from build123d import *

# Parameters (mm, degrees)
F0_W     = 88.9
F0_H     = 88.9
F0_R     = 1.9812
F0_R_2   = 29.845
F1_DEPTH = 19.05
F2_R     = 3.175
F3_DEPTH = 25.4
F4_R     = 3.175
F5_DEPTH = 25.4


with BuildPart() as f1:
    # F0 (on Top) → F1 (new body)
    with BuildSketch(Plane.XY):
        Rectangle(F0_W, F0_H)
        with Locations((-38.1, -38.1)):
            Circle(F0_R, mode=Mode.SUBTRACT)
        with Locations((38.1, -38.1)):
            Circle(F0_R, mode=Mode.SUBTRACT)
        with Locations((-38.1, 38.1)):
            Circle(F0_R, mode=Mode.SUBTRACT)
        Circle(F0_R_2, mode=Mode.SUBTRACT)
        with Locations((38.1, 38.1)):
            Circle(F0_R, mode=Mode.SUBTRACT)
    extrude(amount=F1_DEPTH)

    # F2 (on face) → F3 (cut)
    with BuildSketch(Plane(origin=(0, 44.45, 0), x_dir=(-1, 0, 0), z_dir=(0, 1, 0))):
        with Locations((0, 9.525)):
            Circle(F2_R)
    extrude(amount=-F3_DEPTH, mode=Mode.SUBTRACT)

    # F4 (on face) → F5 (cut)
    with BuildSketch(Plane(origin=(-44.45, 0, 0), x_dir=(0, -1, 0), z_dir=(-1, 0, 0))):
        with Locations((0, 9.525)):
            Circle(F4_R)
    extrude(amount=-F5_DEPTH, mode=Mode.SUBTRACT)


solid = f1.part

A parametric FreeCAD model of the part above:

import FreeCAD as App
import Part
import Sketcher
Q = App.Units.Quantity

doc = App.newDocument("Part")
params = doc.addObject("Spreadsheet::Sheet", "Params")
for row, (alias, value) in enumerate([
    ("sketch1_diameter", "2.35 in"),
    ("sketch1_diameter2", "0.156 in"),
    ("sketch1_width", "3.5 in"),
    ("pad1_length", "0.75 in"),
    ("sketch2_diameter", "0.25 in"),
    ("pocket1_length", "1 in"),
    ("sketch3_diameter", "0.25 in"),
    ("pocket2_length", "1 in"),
], start=1):
    params.set(f"A{row}", alias)
    params.set(f"B{row}", "=" + value)
    params.setAlias(f"B{row}", alias)

body = doc.addObject("PartDesign::Body", "Body")

sketch1 = body.newObject("Sketcher::SketchObject", "Sketch")
sketch1.AttachmentSupport = (doc.getObject("XY_Plane"), [""])
sketch1.MapMode = "FlatFace"
sketch1.addGeometry([
    Part.LineSegment(App.Vector(-44.45, 44.45, 0), App.Vector(-44.45, -44.45, 0)),
    Part.LineSegment(App.Vector(-44.45, -44.45, 0), App.Vector(44.45, -44.45, 0)),
    Part.LineSegment(App.Vector(44.45, -44.45, 0), App.Vector(44.45, 44.45, 0)),
    Part.LineSegment(App.Vector(44.45, 44.45, 0), App.Vector(-44.45, 44.45, 0)),
    Part.Circle(App.Vector(-38.1, -38.1, 0), App.Vector(0, 0, 1), 1.9812),
    Part.Circle(App.Vector(38.1, -38.1, 0), App.Vector(0, 0, 1), 1.9812),
    Part.Circle(App.Vector(-38.1, 38.1, 0), App.Vector(0, 0, 1), 1.9812),
    Part.Circle(App.Vector(0, 0, 0), App.Vector(0, 0, 1), 29.845),
    Part.Circle(App.Vector(38.1, 38.1, 0), App.Vector(0, 0, 1), 1.9812),
], False)
sketch1.addConstraint([
    Sketcher.Constraint("Coincident", 0, 2, 1, 1),
    Sketcher.Constraint("Coincident", 1, 2, 2, 1),
    Sketcher.Constraint("Coincident", 2, 2, 3, 1),
    Sketcher.Constraint("Coincident", 3, 2, 0, 1),
    Sketcher.Constraint("Vertical", 0),
    Sketcher.Constraint("Horizontal", 1),
    Sketcher.Constraint("Vertical", 2),
    Sketcher.Constraint("Horizontal", 3),
    Sketcher.Constraint("Coincident", 7, 3, -1, 1),
    Sketcher.Constraint("Equal", 4, 5),
    Sketcher.Constraint("Equal", 5, 6),
    Sketcher.Constraint("Equal", 6, 8),
    Sketcher.Constraint("Symmetric", 5, 3, 6, 3, -1, 1),
    Sketcher.Constraint("Symmetric", 4, 3, 8, 3, -1, 1),
    Sketcher.Constraint("Symmetric", 0, 2, 2, 2, -1, 1),
    Sketcher.Constraint("Symmetric", 4, 3, 5, 3, -2),
    Sketcher.Constraint("Equal", 3, 0),
    Sketcher.Constraint("Diameter", 7, Q("2.35 in")),
    Sketcher.Constraint("Diameter", 4, Q("0.156 in")),
    Sketcher.Constraint("DistanceX", 1, 1, 1, 2, Q("3.5 in")),
    Sketcher.Constraint("DistanceX", 4, 3, 5, 3, Q("3 in")),
    Sketcher.Constraint("DistanceY", 4, 3, 6, 3, Q("3 in")),
])
sketch1.setExpression("Constraints[17]", "Params.sketch1_diameter")
sketch1.setExpression("Constraints[18]", "Params.sketch1_diameter2")
sketch1.setExpression("Constraints[19]", "Params.sketch1_width")
pad1 = body.newObject("PartDesign::Pad", "Pad")
pad1.Profile = sketch1
pad1.setExpression("Length", "Params.pad1_length")

sketch2 = body.newObject("Sketcher::SketchObject", "Sketch001")
sketch2.AttachmentSupport = (doc.getObject("XZ_Plane"), [""])
sketch2.MapMode = "FlatFace"
sketch2.AttachmentOffset = App.Placement(App.Vector(0, 0, -1.75 * 25.4), App.Rotation())
sketch2.addGeometry(Part.Circle(App.Vector(0, 9.525, 0), App.Vector(0, 0, 1), 3.175), False)
sketch2.addConstraint([
    Sketcher.Constraint("PointOnObject", 0, 3, -2),
    Sketcher.Constraint("Diameter", 0, Q("0.25 in")),
    Sketcher.Constraint("DistanceY", -1, 1, 0, 3, Q("0.375 in")),
])
sketch2.setExpression("Constraints[1]", "Params.sketch2_diameter")
pocket1 = body.newObject("PartDesign::Pocket", "Pocket")
pocket1.Profile = sketch2
pocket1.setExpression("Length", "Params.pocket1_length")
pocket1.Reversed = True

sketch3 = body.newObject("Sketcher::SketchObject", "Sketch002")
sketch3.AttachmentSupport = (doc.getObject("YZ_Plane"), [""])
sketch3.MapMode = "FlatFace"
sketch3.AttachmentOffset = App.Placement(App.Vector(0, 0, -1.75 * 25.4), App.Rotation())
sketch3.addGeometry(Part.Circle(App.Vector(0, 9.525, 0), App.Vector(0, 0, 1), 3.175), False)
sketch3.addConstraint([
    Sketcher.Constraint("PointOnObject", 0, 3, -2),
    Sketcher.Constraint("Diameter", 0, Q("0.25 in")),
    Sketcher.Constraint("DistanceY", -1, 1, 0, 3, Q("0.375 in")),
])
sketch3.setExpression("Constraints[1]", "Params.sketch3_diameter")
pocket2 = body.newObject("PartDesign::Pocket", "Pocket001")
pocket2.Profile = sketch3
pocket2.setExpression("Length", "Params.pocket2_length")
pocket2.Reversed = True

doc.recompute()
